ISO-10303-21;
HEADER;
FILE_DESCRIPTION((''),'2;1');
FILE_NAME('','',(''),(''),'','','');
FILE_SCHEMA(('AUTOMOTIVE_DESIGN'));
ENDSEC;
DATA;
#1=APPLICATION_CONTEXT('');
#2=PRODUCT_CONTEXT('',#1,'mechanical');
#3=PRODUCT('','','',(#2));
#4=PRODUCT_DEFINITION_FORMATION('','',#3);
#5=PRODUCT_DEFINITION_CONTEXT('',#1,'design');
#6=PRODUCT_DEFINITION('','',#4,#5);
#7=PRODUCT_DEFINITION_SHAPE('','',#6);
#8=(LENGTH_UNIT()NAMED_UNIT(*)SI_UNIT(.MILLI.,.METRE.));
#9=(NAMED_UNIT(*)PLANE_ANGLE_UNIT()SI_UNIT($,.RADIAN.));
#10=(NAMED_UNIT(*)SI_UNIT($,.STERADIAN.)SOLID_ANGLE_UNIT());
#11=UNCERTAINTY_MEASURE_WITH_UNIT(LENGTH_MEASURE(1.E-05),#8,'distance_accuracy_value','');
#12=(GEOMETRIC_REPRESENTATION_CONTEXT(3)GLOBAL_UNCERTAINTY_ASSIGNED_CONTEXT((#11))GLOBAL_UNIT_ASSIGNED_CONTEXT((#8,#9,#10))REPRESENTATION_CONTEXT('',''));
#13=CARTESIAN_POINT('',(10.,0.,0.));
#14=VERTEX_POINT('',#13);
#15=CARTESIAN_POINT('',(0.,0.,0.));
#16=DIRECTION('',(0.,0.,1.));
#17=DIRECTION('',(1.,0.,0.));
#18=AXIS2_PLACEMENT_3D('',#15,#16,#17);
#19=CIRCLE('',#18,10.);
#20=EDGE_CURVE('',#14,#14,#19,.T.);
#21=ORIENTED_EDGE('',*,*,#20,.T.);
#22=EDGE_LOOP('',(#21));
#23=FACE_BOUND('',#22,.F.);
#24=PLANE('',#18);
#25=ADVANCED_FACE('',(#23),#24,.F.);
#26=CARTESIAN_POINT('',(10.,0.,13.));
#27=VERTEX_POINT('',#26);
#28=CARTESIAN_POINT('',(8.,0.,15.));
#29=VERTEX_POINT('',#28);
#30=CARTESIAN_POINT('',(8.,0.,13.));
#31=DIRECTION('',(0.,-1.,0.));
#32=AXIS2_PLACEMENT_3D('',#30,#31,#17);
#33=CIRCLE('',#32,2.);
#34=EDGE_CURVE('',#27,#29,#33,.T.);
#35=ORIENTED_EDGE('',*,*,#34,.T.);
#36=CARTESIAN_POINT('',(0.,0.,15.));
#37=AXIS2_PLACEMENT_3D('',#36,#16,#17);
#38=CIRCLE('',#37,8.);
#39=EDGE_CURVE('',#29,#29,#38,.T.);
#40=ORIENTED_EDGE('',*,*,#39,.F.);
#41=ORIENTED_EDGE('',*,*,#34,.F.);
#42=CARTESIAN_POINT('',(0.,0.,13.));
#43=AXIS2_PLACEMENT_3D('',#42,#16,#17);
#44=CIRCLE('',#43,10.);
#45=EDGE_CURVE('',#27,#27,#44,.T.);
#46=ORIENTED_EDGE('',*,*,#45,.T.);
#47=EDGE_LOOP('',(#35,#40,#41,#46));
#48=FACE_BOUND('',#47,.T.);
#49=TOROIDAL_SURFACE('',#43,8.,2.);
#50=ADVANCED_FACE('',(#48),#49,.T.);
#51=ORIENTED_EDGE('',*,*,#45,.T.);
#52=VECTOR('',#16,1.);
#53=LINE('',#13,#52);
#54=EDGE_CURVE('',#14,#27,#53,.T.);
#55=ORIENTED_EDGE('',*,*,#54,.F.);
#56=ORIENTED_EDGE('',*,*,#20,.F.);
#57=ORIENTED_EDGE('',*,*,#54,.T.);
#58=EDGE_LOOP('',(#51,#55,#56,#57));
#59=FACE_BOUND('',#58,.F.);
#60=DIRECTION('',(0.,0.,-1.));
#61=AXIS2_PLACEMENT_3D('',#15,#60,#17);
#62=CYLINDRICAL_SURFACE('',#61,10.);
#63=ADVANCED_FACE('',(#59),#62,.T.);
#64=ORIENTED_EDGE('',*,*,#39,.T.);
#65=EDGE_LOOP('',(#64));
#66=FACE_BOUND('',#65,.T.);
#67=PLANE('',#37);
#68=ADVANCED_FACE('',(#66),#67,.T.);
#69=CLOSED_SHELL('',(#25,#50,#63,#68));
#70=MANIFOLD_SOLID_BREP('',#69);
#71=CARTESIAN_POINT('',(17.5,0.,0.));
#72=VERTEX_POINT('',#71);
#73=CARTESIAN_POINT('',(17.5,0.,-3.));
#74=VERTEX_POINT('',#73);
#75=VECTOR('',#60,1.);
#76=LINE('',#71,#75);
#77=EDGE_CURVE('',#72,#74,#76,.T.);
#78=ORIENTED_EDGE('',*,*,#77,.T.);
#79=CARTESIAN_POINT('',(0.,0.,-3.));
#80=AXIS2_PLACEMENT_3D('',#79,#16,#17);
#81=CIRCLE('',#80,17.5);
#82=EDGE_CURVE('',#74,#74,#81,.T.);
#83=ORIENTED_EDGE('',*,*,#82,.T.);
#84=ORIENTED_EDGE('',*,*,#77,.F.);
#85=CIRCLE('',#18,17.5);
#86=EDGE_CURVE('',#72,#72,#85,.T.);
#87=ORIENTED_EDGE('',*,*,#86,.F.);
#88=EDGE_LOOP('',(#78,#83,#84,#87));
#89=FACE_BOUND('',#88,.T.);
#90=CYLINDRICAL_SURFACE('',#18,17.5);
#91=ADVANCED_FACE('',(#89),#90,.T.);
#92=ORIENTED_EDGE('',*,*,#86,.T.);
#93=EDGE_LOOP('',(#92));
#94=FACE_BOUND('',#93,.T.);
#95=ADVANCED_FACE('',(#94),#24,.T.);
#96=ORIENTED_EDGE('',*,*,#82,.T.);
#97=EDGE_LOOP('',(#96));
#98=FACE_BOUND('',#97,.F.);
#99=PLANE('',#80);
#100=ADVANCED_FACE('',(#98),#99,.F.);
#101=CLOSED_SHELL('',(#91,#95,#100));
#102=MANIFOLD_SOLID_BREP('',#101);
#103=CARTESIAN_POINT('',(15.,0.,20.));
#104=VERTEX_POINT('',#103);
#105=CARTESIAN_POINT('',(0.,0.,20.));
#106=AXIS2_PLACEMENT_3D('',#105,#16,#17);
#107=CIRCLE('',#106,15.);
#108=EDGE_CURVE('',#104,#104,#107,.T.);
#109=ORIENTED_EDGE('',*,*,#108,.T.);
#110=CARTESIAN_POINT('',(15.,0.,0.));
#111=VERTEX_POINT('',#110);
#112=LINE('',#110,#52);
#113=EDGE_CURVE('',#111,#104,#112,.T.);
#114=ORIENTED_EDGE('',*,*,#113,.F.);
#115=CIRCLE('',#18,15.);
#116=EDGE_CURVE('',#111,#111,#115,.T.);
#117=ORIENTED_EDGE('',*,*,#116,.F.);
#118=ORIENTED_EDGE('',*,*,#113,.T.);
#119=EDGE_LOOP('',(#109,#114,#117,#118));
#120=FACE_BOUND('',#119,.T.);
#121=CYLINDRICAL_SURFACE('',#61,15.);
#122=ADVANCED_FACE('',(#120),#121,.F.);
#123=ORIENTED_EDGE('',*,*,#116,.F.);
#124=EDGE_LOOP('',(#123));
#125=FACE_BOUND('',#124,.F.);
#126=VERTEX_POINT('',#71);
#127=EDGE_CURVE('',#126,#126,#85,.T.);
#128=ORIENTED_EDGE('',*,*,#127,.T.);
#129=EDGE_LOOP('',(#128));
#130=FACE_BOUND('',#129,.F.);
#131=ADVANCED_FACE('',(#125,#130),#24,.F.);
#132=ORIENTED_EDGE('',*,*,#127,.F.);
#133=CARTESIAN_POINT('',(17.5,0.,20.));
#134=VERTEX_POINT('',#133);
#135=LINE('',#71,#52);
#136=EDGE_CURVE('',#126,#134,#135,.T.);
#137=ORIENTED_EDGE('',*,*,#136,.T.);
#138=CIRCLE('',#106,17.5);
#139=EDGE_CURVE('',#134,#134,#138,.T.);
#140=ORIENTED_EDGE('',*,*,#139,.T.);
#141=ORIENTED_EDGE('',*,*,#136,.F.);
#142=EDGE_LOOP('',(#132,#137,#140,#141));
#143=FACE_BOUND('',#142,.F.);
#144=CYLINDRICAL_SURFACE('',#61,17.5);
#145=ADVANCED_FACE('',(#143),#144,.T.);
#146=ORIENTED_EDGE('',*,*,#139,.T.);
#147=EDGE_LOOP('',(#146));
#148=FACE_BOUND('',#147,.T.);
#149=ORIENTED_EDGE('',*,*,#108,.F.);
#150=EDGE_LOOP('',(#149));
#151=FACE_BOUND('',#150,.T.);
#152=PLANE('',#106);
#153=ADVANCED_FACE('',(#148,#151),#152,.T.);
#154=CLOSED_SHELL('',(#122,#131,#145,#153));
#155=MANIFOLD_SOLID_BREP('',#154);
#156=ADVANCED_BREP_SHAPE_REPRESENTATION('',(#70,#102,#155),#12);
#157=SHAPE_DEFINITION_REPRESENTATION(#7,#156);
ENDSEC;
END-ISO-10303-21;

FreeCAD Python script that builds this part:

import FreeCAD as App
import Part
import Sketcher
from FreeCAD import Vector
Q = App.Units.Quantity


def edges_at(feature, points):
    """Names of the edges that pass closest to the given points."""
    edges = feature.Shape.Edges
    near = lambda p: min(range(len(edges)), key=lambda i: edges[i].distToShape(Part.Vertex(*p))[0])
    return sorted({f"Edge{near(p) + 1}" for p in points})

doc = App.newDocument("Part")
body = doc.addObject("PartDesign::Body", "Body")

sketch1 = doc.addObject("Sketcher::SketchObject", "Sketch")
body.addObject(sketch1)
sketch1.AttachmentSupport = (doc.XY_Plane, [""])
sketch1.MapMode = "FlatFace"
sketch1.addGeometry([
    Part.Circle(Vector(0, 0, 0), Vector(0, 0, 1), 18),
    Part.Circle(Vector(0, 0, 0), Vector(0, 0, 1), 15),
], False)
sketch1.addConstraint([
    Sketcher.Constraint("Coincident", 0, 3, -1, 1),
    Sketcher.Constraint("Coincident", 1, 3, -1, 1),
    Sketcher.Constraint("Diameter", 0, Q("35 mm")),
    Sketcher.Constraint("Diameter", 1, Q("30 mm")),
])
pad1 = doc.addObject("PartDesign::Pad", "Pad")
body.addObject(pad1)
pad1.Profile = sketch1
pad1.Length = 20
body2 = doc.addObject("PartDesign::Body", "Body001")

sketch2 = doc.addObject("Sketcher::SketchObject", "Sketch001")
body2.addObject(sketch2)
sketch2.AttachmentSupport = (doc.getObject("XY_Plane001"), [""])
sketch2.MapMode = "FlatFace"
sketch2.addGeometry(Part.Circle(Vector(0, 0, 0), Vector(0, 0, 1), 10), False)
sketch2.addConstraint([
    Sketcher.Constraint("Coincident", 0, 3, -1, 1),
    Sketcher.Constraint("Diameter", 0, Q("20 mm")),
])
pad2 = doc.addObject("PartDesign::Pad", "Pad001")
body2.addObject(pad2)
pad2.Profile = sketch2
pad2.Length = 15
doc.recompute()

fillet = doc.addObject("PartDesign::Fillet", "Fillet")
body2.addObject(fillet)
fillet.Base = (pad2, edges_at(pad2, [(-10, 0, 15)]))
fillet.Radius = 2
body3 = doc.addObject("PartDesign::Body", "Body002")

sketch3 = doc.addObject("Sketcher::SketchObject", "Sketch002")
body3.addObject(sketch3)
sketch3.AttachmentSupport = (doc.getObject("XY_Plane002"), [""])
sketch3.MapMode = "FlatFace"
sketch3.addGeometry(Part.Circle(Vector(0, 0, 0), Vector(0, 0, 1), 18), False)
sketch3.addConstraint([
    Sketcher.Constraint("Coincident", 0, 3, -1, 1),
    Sketcher.Constraint("Diameter", 0, Q("35 mm")),
])
pad3 = doc.addObject("PartDesign::Pad", "Pad002")
body3.addObject(pad3)
pad3.Profile = sketch3
pad3.Length = 3
pad3.Reversed = True

doc.recompute()
